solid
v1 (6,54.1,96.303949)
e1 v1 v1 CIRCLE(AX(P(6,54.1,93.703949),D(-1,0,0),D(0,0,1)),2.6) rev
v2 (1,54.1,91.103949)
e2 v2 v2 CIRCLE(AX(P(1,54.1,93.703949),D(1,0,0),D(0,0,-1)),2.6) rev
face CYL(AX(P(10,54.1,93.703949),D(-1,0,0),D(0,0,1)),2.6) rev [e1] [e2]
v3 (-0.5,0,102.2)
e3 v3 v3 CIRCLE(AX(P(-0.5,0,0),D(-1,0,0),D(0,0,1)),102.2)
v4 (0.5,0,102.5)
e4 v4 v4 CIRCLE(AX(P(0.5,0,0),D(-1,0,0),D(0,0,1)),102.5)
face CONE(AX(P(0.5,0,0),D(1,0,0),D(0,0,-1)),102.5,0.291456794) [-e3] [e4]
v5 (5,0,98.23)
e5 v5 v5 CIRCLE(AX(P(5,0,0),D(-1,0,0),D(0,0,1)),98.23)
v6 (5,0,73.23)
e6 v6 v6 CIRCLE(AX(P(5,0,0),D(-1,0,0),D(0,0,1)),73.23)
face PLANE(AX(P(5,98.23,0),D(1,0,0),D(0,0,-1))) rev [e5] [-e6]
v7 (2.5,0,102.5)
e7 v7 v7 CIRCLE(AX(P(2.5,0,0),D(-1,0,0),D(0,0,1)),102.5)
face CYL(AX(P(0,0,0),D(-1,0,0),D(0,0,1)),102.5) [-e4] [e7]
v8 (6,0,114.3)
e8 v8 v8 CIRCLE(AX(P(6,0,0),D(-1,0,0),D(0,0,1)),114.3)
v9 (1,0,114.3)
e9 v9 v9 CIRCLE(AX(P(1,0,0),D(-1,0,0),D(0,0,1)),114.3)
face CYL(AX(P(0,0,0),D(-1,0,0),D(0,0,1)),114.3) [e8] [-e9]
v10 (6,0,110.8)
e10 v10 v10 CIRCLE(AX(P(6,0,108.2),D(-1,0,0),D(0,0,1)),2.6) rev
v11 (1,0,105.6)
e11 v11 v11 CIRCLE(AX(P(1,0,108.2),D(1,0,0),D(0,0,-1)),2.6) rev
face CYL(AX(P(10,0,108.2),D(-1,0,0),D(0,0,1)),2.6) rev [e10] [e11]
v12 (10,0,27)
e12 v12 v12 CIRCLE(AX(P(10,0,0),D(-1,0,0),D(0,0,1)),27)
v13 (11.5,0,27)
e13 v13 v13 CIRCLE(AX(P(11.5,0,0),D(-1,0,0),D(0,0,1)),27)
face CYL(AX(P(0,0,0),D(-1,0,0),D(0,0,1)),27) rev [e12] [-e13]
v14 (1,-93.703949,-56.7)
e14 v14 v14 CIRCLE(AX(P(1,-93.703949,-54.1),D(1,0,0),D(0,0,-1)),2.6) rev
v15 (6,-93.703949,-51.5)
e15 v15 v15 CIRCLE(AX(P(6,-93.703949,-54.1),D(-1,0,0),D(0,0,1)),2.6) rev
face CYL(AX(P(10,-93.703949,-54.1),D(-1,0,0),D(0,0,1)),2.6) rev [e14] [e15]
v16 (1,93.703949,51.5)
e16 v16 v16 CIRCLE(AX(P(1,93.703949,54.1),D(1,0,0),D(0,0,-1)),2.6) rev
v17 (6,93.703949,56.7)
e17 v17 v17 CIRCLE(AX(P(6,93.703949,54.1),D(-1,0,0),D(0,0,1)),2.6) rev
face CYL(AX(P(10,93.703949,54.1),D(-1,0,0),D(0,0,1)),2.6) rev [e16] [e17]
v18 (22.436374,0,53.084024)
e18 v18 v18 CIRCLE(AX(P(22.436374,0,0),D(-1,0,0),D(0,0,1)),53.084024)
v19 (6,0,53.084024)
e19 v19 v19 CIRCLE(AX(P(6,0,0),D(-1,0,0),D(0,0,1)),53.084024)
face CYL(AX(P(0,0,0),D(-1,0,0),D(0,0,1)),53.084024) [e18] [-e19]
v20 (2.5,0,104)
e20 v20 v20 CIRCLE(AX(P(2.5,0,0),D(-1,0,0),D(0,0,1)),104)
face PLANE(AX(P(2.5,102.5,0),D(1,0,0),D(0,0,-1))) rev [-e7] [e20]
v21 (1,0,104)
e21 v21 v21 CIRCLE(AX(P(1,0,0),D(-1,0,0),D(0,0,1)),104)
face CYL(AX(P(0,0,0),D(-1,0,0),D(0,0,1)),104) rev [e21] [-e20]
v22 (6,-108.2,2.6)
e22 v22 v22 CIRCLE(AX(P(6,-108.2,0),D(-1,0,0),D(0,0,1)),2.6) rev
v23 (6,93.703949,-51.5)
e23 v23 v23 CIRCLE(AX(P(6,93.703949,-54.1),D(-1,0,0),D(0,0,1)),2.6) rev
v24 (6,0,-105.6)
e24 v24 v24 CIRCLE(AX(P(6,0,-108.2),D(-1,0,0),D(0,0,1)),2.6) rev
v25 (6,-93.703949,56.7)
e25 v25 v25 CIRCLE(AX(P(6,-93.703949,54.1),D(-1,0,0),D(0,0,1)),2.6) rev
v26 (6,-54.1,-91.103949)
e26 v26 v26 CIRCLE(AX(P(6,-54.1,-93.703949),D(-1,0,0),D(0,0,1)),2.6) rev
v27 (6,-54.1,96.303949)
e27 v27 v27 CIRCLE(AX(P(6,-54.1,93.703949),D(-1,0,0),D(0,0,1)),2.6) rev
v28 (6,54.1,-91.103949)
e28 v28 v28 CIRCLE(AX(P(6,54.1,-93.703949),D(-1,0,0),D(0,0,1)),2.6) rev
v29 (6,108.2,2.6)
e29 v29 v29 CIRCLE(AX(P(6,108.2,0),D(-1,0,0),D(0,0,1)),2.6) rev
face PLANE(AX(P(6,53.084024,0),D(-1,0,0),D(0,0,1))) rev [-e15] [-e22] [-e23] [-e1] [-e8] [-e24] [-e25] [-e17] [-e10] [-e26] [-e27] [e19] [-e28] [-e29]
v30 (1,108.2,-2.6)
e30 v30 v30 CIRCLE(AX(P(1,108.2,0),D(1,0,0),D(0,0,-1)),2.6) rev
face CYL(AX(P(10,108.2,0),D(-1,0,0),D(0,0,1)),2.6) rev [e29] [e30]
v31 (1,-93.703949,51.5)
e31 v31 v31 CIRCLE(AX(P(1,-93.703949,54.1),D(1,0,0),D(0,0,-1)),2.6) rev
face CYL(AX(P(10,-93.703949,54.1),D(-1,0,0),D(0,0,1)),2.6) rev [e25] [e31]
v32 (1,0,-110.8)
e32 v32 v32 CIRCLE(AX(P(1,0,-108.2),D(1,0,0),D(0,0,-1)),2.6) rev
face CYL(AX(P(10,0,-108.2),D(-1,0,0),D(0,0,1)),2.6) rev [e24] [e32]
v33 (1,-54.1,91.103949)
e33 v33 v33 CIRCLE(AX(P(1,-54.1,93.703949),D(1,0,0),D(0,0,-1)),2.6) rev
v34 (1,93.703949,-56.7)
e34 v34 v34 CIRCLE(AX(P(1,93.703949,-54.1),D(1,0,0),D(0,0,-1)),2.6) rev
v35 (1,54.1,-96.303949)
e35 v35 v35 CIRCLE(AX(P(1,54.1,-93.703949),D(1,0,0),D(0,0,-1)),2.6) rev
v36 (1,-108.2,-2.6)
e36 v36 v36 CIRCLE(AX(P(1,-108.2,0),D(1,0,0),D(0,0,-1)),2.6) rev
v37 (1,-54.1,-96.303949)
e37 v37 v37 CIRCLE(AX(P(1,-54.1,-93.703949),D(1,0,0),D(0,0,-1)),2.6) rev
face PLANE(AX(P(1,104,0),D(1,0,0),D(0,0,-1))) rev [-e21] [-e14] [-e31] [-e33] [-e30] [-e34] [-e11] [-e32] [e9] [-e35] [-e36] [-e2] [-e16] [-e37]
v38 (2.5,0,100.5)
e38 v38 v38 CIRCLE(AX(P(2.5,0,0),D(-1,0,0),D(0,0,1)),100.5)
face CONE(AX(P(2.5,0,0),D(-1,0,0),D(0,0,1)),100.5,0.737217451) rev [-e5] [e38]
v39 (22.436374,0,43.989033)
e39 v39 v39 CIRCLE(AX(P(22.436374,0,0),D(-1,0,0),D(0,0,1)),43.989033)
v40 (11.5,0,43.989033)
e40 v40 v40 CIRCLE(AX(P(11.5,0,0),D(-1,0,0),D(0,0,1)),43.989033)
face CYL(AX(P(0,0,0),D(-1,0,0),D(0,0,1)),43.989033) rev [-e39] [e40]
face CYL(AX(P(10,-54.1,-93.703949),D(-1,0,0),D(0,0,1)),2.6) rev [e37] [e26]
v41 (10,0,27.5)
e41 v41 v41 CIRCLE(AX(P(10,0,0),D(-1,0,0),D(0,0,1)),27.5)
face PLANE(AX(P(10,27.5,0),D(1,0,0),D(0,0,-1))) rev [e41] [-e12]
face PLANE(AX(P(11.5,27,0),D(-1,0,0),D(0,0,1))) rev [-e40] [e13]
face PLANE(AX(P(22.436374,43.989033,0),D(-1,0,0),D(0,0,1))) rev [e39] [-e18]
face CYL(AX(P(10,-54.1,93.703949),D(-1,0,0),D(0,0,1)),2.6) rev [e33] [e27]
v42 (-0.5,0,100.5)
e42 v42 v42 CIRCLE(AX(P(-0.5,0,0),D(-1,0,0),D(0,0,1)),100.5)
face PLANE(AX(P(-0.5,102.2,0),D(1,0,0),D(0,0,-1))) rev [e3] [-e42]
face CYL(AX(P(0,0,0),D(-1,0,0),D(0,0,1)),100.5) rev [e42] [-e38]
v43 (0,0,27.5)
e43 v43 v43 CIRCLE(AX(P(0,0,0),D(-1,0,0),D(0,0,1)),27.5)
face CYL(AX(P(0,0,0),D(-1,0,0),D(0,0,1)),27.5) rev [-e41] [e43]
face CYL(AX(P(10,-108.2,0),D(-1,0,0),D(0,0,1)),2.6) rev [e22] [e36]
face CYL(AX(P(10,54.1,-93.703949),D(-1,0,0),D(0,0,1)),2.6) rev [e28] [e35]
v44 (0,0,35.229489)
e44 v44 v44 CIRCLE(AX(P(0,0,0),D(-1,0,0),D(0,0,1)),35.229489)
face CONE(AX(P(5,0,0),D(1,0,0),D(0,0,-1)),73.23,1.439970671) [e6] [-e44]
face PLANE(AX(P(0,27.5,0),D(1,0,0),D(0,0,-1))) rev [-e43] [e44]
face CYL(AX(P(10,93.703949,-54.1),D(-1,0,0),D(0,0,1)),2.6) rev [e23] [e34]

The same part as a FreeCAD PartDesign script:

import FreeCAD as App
import Part
import Sketcher
from FreeCAD import Vector
Q = App.Units.Quantity

doc = App.newDocument("Part")
params = doc.addObject("Spreadsheet::Sheet", "Params")
for row, (alias, value) in enumerate([
    ("sketch1_width", "10 mm"),
    ("sketch1_width2", "5 mm"),
    ("sketch1_width3", "2 mm"),
    ("sketch1_width4", "3 mm"),
    ("sketch1_height", "25 mm"),
    ("revolution_angle", "360 deg"),
    ("sketch2_diameter", "5.2 mm"),
    ("pocket1_length", "10 mm"),
], start=1):
    params.set(f"A{row}", alias)
    params.set(f"B{row}", "=" + value)
    params.setAlias(f"B{row}", alias)

body = doc.addObject("PartDesign::Body", "Body")

# Sketch on XY plane
sketch1 = body.newObject("Sketcher::SketchObject", "Sketch")
sketch1.AttachmentSupport = (doc.getObject("XY_Plane"), [""])
sketch1.MapMode = "FlatFace"
sketch1.addGeometry(Part.LineSegment(Vector(0, 27.5, 0), Vector(10, 27.5, 0)), False)
sketch1.addGeometry(Part.LineSegment(Vector(10, 27.5, 0), Vector(10, 27, 0)), False)
sketch1.addGeometry(Part.LineSegment(Vector(10, 27, 0), Vector(11.5, 27, 0)), False)
sketch1.addGeometry(Part.LineSegment(Vector(11.5, 27, 0), Vector(11.5, 44, 0)), False)
sketch1.addGeometry(Part.LineSegment(Vector(11.5, 44, 0), Vector(22.4, 44, 0)), False)
sketch1.addGeometry(Part.LineSegment(Vector(22.4, 44, 0), Vector(22.4, 53.1, 0)), False)
sketch1.addGeometry(Part.LineSegment(Vector(22.4, 53.1, 0), Vector(6, 53.1, 0)), False)
sketch1.addGeometry(Part.LineSegment(Vector(6, 53.1, 0), Vector(6, 114.3, 0)), False)
sketch1.addGeometry(Part.LineSegment(Vector(6, 114.3, 0), Vector(1, 114.3, 0)), False)
sketch1.addGeometry(Part.LineSegment(Vector(1, 114.3, 0), Vector(1, 104, 0)), False)
sketch1.addGeometry(Part.LineSegment(Vector(1, 104, 0), Vector(2.5, 104, 0)), False)
sketch1.addGeometry(Part.LineSegment(Vector(2.5, 104, 0), Vector(2.5, 102.5, 0)), False)
sketch1.addGeometry(Part.LineSegment(Vector(2.5, 102.5, 0), Vector(0.5, 102.5, 0)), False)
sketch1.addGeometry(Part.LineSegment(Vector(0.5, 102.5, 0), Vector(-0.5, 102.2, 0)), False)
sketch1.addGeometry(Part.LineSegment(Vector(-0.5, 102.2, 0), Vector(-0.5, 100.5, 0)), False)
sketch1.addGeometry(Part.LineSegment(Vector(-0.5, 100.5, 0), Vector(2.5, 100.5, 0)), False)
sketch1.addGeometry(Part.LineSegment(Vector(2.5, 100.5, 0), Vector(5, 98.2, 0)), False)
sketch1.addGeometry(Part.LineSegment(Vector(5, 98.2, 0), Vector(5, 73.2, 0)), False)
sketch1.addGeometry(Part.LineSegment(Vector(5, 73.2, 0), Vector(0, 35.2, 0)), False)
sketch1.addGeometry(Part.LineSegment(Vector(0, 35.2, 0), Vector(0, 27.5, 0)), False)
sketch1.addConstraint(Sketcher.Constraint("Coincident", 0, 2, 1, 1))
sketch1.addConstraint(Sketcher.Constraint("Coincident", 1, 2, 2, 1))
sketch1.addConstraint(Sketcher.Constraint("Coincident", 2, 2, 3, 1))
sketch1.addConstraint(Sketcher.Constraint("Coincident", 3, 2, 4, 1))
sketch1.addConstraint(Sketcher.Constraint("Coincident", 4, 2, 5, 1))
sketch1.addConstraint(Sketcher.Constraint("Coincident", 5, 2, 6, 1))
sketch1.addConstraint(Sketcher.Constraint("Coincident", 6, 2, 7, 1))
sketch1.addConstraint(Sketcher.Constraint("Coincident", 7, 2, 8, 1))
sketch1.addConstraint(Sketcher.Constraint("Coincident", 8, 2, 9, 1))
sketch1.addConstraint(Sketcher.Constraint("Coincident", 9, 2, 10, 1))
sketch1.addConstraint(Sketcher.Constraint("Coincident", 10, 2, 11, 1))
sketch1.addConstraint(Sketcher.Constraint("Coincident", 11, 2, 12, 1))
sketch1.addConstraint(Sketcher.Constraint("Coincident", 12, 2, 13, 1))
sketch1.addConstraint(Sketcher.Constraint("Coincident", 13, 2, 14, 1))
sketch1.addConstraint(Sketcher.Constraint("Coincident", 14, 2, 15, 1))
sketch1.addConstraint(Sketcher.Constraint("Coincident", 15, 2, 16, 1))
sketch1.addConstraint(Sketcher.Constraint("Coincident", 16, 2, 17, 1))
sketch1.addConstraint(Sketcher.Constraint("Coincident", 17, 2, 18, 1))
sketch1.addConstraint(Sketcher.Constraint("Coincident", 18, 2, 19, 1))
sketch1.addConstraint(Sketcher.Constraint("Coincident", 19, 2, 0, 1))
sketch1.addConstraint(Sketcher.Constraint("Horizontal", 0))
sketch1.addConstraint(Sketcher.Constraint("Vertical", 1))
sketch1.addConstraint(Sketcher.Constraint("Horizontal", 2))
sketch1.addConstraint(Sketcher.Constraint("Vertical", 3))
sketch1.addConstraint(Sketcher.Constraint("Horizontal", 4))
sketch1.addConstraint(Sketcher.Constraint("Vertical", 5))
sketch1.addConstraint(Sketcher.Constraint("Horizontal", 6))
sketch1.addConstraint(Sketcher.Constraint("Vertical", 7))
sketch1.addConstraint(Sketcher.Constraint("Horizontal", 8))
sketch1.addConstraint(Sketcher.Constraint("Vertical", 9))
sketch1.addConstraint(Sketcher.Constraint("Horizontal", 10))
sketch1.addConstraint(Sketcher.Constraint("Vertical", 11))
sketch1.addConstraint(Sketcher.Constraint("Horizontal", 12))
sketch1.addConstraint(Sketcher.Constraint("Vertical", 14))
sketch1.addConstraint(Sketcher.Constraint("Horizontal", 15))
sketch1.addConstraint(Sketcher.Constraint("Vertical", 17))
sketch1.addConstraint(Sketcher.Constraint("Vertical", 19))
sketch1.addConstraint(Sketcher.Constraint("PointOnObject", 18, 2, -2))
sketch1.addConstraint(Sketcher.Constraint("Vertical", 11, 2, 15, 2))
sketch1.addConstraint(Sketcher.Constraint("Equal", 2, 10))
sketch1.addConstraint(Sketcher.Constraint("Equal", 10, 11))
sketch1.addConstraint(Sketcher.Constraint("DistanceX", 0, 1, 0, 2, Q("10 mm")))
sketch1.addConstraint(Sketcher.Constraint("DistanceX", 8, 2, 8, 1, Q("5 mm")))
sketch1.addConstraint(Sketcher.Constraint("DistanceX", 12, 2, 12, 1, Q("2 mm")))
sketch1.addConstraint(Sketcher.Constraint("DistanceX", 15, 1, 15, 2, Q("3 mm")))
sketch1.addConstraint(Sketcher.Constraint("DistanceY", 17, 2, 17, 1, Q("25 mm")))
sketch1.addConstraint(Sketcher.Constraint("DistanceX", 2, 1, 2, 2, Q("1.5 mm")))
sketch1.addConstraint(Sketcher.Constraint("DistanceY", 1, 2, 1, 1, Q("0.5 mm")))
sketch1.addConstraint(Sketcher.Constraint("DistanceY", 9, 2, 9, 1, Q("10.3 mm")))
sketch1.addConstraint(Sketcher.Constraint("DistanceY", 14, 2, 14, 1, Q("1.7 mm")))
sketch1.addConstraint(Sketcher.Constraint("DistanceY", -1, 1, 1, 2, Q("27 mm")))
sketch1.addConstraint(Sketcher.Constraint("DistanceX", -1, 1, 6, 2, Q("6 mm")))
sketch1.addConstraint(Sketcher.Constraint("DistanceY", -1, 1, 9, 2, Q("104 mm")))
sketch1.addConstraint(Sketcher.Constraint("DistanceX", -1, 1, 16, 2, Q("5 mm")))
sketch1.addConstraint(Sketcher.Constraint("DistanceY", 14, 2, 12, 2, Q("2 mm")))
sketch1.addConstraint(Sketcher.Constraint("DistanceY", -1, 1, 16, 2, Q("98.23 mm")))
sketch1.addConstraint(Sketcher.Constraint("DistanceY", 5, 1, 5, 2, Q("9.094991 mm")))
sketch1.addConstraint(Sketcher.Constraint("DistanceY", 19, 2, 19, 1, Q("7.729489 mm")))
sketch1.addConstraint(Sketcher.Constraint("DistanceX", 4, 1, 4, 2, Q("10.936374 mm")))
sketch1.addConstraint(Sketcher.Constraint("DistanceY", 3, 1, 3, 2, Q("16.989033 mm")))
sketch1.setExpression("Constraints[41]", "Params.sketch1_width")
sketch1.setExpression("Constraints[42]", "Params.sketch1_width2")
sketch1.setExpression("Constraints[43]", "Params.sketch1_width3")
sketch1.setExpression("Constraints[44]", "Params.sketch1_width4")
sketch1.setExpression("Constraints[45]", "Params.sketch1_height")
revolution = body.newObject("PartDesign::Revolution", "Revolution")
revolution.Profile = sketch1
revolution.ReferenceAxis = (sketch1, ["H_Axis"])
revolution.setExpression("Angle", "Params.revolution_angle")

# Sketch on YZ plane
sketch2 = body.newObject("Sketcher::SketchObject", "Sketch001")
sketch2.AttachmentSupport = (doc.getObject("YZ_Plane"), [""])
sketch2.MapMode = "FlatFace"
sketch2.addGeometry(Part.Circle(Vector(108.2, 0, 0), Vector(0, 0, 1), 2.6), False)
sketch2.addGeometry(Part.Circle(Vector(93.7, -54.1, 0), Vector(0, 0, 1), 2.6), False)
sketch2.addGeometry(Part.Circle(Vector(54.1, -93.7, 0), Vector(0, 0, 1), 2.6), False)
sketch2.addGeometry(Part.Circle(Vector(0, -108.2, 0), Vector(0, 0, 1), 2.6), False)
sketch2.addGeometry(Part.Circle(Vector(-54.1, -93.7, 0), Vector(0, 0, 1), 2.6), False)
sketch2.addGeometry(Part.Circle(Vector(-93.7, -54.1, 0), Vector(0, 0, 1), 2.6), False)
sketch2.addGeometry(Part.Circle(Vector(-108.2, 0, 0), Vector(0, 0, 1), 2.6), False)
sketch2.addGeometry(Part.Circle(Vector(-93.7, 54.1, 0), Vector(0, 0, 1), 2.6), False)
sketch2.addGeometry(Part.Circle(Vector(-54.1, 93.7, 0), Vector(0, 0, 1), 2.6), False)
sketch2.addGeometry(Part.Circle(Vector(0, 108.2, 0), Vector(0, 0, 1), 2.6), False)
sketch2.addGeometry(Part.Circle(Vector(54.1, 93.7, 0), Vector(0, 0, 1), 2.6), False)
sketch2.addGeometry(Part.Circle(Vector(93.7, 54.1, 0), Vector(0, 0, 1), 2.6), False)
sketch2.addConstraint(Sketcher.Constraint("Equal", 0, 1))
sketch2.addConstraint(Sketcher.Constraint("Equal", 1, 2))
sketch2.addConstraint(Sketcher.Constraint("Equal", 2, 3))
sketch2.addConstraint(Sketcher.Constraint("Equal", 3, 4))
sketch2.addConstraint(Sketcher.Constraint("Equal", 4, 5))
sketch2.addConstraint(Sketcher.Constraint("Equal", 5, 6))
sketch2.addConstraint(Sketcher.Constraint("Equal", 6, 7))
sketch2.addConstraint(Sketcher.Constraint("Equal", 7, 8))
sketch2.addConstraint(Sketcher.Constraint("Equal", 8, 9))
sketch2.addConstraint(Sketcher.Constraint("Equal", 9, 10))
sketch2.addConstraint(Sketcher.Constraint("Equal", 10, 11))
sketch2.addConstraint(Sketcher.Constraint("Symmetric", 0, 3, 6, 3, -1, 1))
sketch2.addConstraint(Sketcher.Constraint("Symmetric", 1, 3, 7, 3, -1, 1))
sketch2.addConstraint(Sketcher.Constraint("Symmetric", 2, 3, 8, 3, -1, 1))
sketch2.addConstraint(Sketcher.Constraint("Symmetric", 3, 3, 9, 3, -1, 1))
sketch2.addConstraint(Sketcher.Constraint("Symmetric", 4, 3, 10, 3, -1, 1))
sketch2.addConstraint(Sketcher.Constraint("Symmetric", 5, 3, 11, 3, -1, 1))
sketch2.addConstraint(Sketcher.Constraint("Symmetric", 2, 3, 4, 3, -2))
sketch2.addConstraint(Sketcher.Constraint("Symmetric", 1, 3, 5, 3, -2))
sketch2.addConstraint(Sketcher.Constraint("PointOnObject", 0, 3, -1))
sketch2.addConstraint(Sketcher.Constraint("PointOnObject", 3, 3, -2))
sketch2.addConstraint(Sketcher.Constraint("Diameter", 0, Q("5.2 mm")))
sketch2.addConstraint(Sketcher.Constraint("DistanceX", -1, 1, 0, 3, Q("108.2 mm")))
sketch2.addConstraint(Sketcher.Constraint("DistanceY", 1, 3, -1, 1, Q("54.1 mm")))
sketch2.addConstraint(Sketcher.Constraint("DistanceX", -1, 1, 2, 3, Q("54.1 mm")))
sketch2.addConstraint(Sketcher.Constraint("DistanceY", 3, 3, -1, 1, Q("108.2 mm")))
sketch2.addConstraint(Sketcher.Constraint("DistanceX", -1, 1, 1, 3, Q("93.703949 mm")))
sketch2.addConstraint(Sketcher.Constraint("DistanceY", 2, 3, -1, 1, Q("93.703949 mm")))
sketch2.setExpression("Constraints[21]", "Params.sketch2_diameter")
pocket1 = body.newObject("PartDesign::Pocket", "Pocket")
pocket1.Profile = sketch2
pocket1.setExpression("Length", "Params.pocket1_length")
pocket1.Reversed = True

doc.recompute()
